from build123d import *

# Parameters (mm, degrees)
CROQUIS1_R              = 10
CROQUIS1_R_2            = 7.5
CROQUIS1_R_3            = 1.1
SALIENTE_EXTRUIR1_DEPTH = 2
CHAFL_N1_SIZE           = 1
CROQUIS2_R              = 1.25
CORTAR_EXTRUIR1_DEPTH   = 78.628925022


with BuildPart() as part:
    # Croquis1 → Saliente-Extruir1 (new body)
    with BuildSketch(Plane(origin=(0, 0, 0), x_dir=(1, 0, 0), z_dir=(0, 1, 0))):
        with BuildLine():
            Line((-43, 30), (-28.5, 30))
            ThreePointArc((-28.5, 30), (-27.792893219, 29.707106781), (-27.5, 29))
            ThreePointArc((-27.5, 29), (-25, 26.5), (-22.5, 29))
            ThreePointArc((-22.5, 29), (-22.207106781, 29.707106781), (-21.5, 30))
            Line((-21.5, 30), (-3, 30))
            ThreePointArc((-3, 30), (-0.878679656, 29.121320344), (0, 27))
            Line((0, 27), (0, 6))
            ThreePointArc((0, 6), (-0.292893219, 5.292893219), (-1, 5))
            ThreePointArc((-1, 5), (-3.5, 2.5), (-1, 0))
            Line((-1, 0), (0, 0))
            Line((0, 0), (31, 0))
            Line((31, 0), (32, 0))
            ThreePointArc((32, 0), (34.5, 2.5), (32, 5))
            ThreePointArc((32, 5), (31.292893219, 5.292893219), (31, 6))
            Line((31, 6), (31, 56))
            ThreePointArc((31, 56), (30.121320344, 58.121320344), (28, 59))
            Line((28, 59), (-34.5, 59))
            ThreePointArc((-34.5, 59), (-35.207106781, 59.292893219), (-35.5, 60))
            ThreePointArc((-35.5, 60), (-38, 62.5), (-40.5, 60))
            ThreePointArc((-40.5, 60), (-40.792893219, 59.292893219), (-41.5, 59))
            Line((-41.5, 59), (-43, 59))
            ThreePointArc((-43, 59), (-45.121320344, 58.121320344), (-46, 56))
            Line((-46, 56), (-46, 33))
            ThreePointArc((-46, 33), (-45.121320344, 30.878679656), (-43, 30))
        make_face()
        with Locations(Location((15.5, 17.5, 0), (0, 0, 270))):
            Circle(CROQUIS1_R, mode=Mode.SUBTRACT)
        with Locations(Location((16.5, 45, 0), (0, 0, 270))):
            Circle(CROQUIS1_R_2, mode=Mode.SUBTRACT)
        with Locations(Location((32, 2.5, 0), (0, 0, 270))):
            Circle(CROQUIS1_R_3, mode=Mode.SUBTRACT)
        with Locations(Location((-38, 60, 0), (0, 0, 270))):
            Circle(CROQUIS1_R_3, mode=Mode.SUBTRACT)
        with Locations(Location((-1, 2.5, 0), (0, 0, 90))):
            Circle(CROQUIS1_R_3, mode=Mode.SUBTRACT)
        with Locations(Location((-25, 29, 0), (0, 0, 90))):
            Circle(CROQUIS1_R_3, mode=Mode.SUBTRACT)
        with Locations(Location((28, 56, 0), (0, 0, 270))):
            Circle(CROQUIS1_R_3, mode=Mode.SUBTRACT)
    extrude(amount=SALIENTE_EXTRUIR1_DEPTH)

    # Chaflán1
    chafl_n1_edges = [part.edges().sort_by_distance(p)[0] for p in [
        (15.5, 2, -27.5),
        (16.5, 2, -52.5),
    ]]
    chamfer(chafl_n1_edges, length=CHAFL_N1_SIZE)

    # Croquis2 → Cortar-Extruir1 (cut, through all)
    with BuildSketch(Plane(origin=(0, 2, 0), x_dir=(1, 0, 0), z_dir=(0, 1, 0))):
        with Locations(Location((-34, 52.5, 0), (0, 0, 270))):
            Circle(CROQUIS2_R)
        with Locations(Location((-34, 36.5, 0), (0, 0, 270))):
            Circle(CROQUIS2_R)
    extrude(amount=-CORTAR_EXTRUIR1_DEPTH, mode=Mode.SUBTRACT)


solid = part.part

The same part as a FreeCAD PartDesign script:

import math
import FreeCAD as App
import Part
import Sketcher
from FreeCAD import Vector


def edges_at(feature, points):
    """Names of the edges that pass closest to the given points."""
    edges = feature.Shape.Edges
    near = lambda p: min(range(len(edges)), key=lambda i: edges[i].distToShape(Part.Vertex(*p))[0])
    return sorted({f"Edge{near(p) + 1}" for p in points})

doc = App.newDocument("Part")
body = doc.addObject("PartDesign::Body", "Body")

# Sketch on XZ plane
sketch1 = body.newObject("Sketcher::SketchObject", "Sketch")
sketch1.AttachmentSupport = (doc.getObject("XZ_Plane"), [""])
sketch1.MapMode = "FlatFace"
sketch1.addGeometry([
    Part.LineSegment(Vector(-43, -30, 0), Vector(-28.5, -30, 0)),  # 0
    Part.ArcOfCircle(Part.Circle(Vector(-28.5, -29, 0), Vector(0, 0, 1), 1), math.radians(-90), math.radians(0)),  # 1
    Part.ArcOfCircle(Part.Circle(Vector(-25, -29, 0), Vector(0, 0, 1), 2.5), math.radians(0), math.radians(180)),  # 2
    Part.ArcOfCircle(Part.Circle(Vector(-21.5, -29, 0), Vector(0, 0, 1), 1), math.radians(-180), math.radians(-90)),  # 3
    Part.LineSegment(Vector(-21.5, -30, 0), Vector(-3, -30, 0)),  # 4
    Part.ArcOfCircle(Part.Circle(Vector(-3, -27, 0), Vector(0, 0, 1), 3), math.radians(-90), math.radians(0)),  # 5
    Part.LineSegment(Vector(0, -27, 0), Vector(0, -6, 0)),  # 6
    Part.ArcOfCircle(Part.Circle(Vector(-1, -6, 0), Vector(0, 0, 1), 1), math.radians(0), math.radians(90)),  # 7
    Part.ArcOfCircle(Part.Circle(Vector(-1, -2.5, 0), Vector(0, 0, 1), 2.5), math.radians(90), math.radians(270)),  # 8
    Part.LineSegment(Vector(-1, 0, 0), Vector(32, 0, 0)),  # 9
    Part.ArcOfCircle(Part.Circle(Vector(32, -2.5, 0), Vector(0, 0, 1), 2.5), math.radians(-90), math.radians(90)),  # 10
    Part.ArcOfCircle(Part.Circle(Vector(32, -6, 0), Vector(0, 0, 1), 1), math.radians(90), math.radians(180)),  # 11
    Part.LineSegment(Vector(31, -6, 0), Vector(31, -56, 0)),  # 12
    Part.ArcOfCircle(Part.Circle(Vector(28, -56, 0), Vector(0, 0, 1), 3), math.radians(-90), math.radians(0)),  # 13
    Part.LineSegment(Vector(28, -59, 0), Vector(-34.5, -59, 0)),  # 14
    Part.ArcOfCircle(Part.Circle(Vector(-34.5, -60, 0), Vector(0, 0, 1), 1), math.radians(90), math.radians(180)),  # 15
    Part.ArcOfCircle(Part.Circle(Vector(-38, -60, 0), Vector(0, 0, 1), 2.5), math.radians(180), math.radians(360)),  # 16
    Part.ArcOfCircle(Part.Circle(Vector(-41.5, -60, 0), Vector(0, 0, 1), 1), math.radians(0), math.radians(90)),  # 17
    Part.LineSegment(Vector(-41.5, -59, 0), Vector(-43, -59, 0)),  # 18
    Part.ArcOfCircle(Part.Circle(Vector(-43, -56, 0), Vector(0, 0, 1), 3), math.radians(180), math.radians(270)),  # 19
    Part.LineSegment(Vector(-46, -56, 0), Vector(-46, -33, 0)),  # 20
    Part.ArcOfCircle(Part.Circle(Vector(-43, -33, 0), Vector(0, 0, 1), 3), math.radians(90), math.radians(180)),  # 21
    Part.Circle(Vector(-25, -29, 0), Vector(0, 0, 1), 1.1),  # 22
    Part.Circle(Vector(-1, -2.5, 0), Vector(0, 0, 1), 1.1),  # 23
    Part.Circle(Vector(32, -2.5, 0), Vector(0, 0, 1), 1.1),  # 24
    Part.Circle(Vector(15.5, -17.5, 0), Vector(0, 0, 1), 10),  # 25
    Part.Circle(Vector(-38, -60, 0), Vector(0, 0, 1), 1.1),  # 26
    Part.Circle(Vector(16.5, -45, 0), Vector(0, 0, 1), 7.5),  # 27
    Part.Circle(Vector(28, -56, 0), Vector(0, 0, 1), 1.1),  # 28
], False)
sketch1.addConstraint([
    Sketcher.Constraint("Tangent", 0, 2, 1, 1),
    Sketcher.Constraint("Tangent", 1, 2, 2, 2),
    Sketcher.Constraint("Tangent", 2, 1, 3, 1),
    Sketcher.Constraint("Tangent", 3, 2, 4, 1),
    Sketcher.Constraint("Tangent", 4, 2, 5, 1),
    Sketcher.Constraint("Tangent", 5, 2, 6, 1),
    Sketcher.Constraint("Tangent", 6, 2, 7, 1),
    Sketcher.Constraint("Tangent", 7, 2, 8, 2),
    Sketcher.Constraint("Tangent", 8, 1, 9, 1),
    Sketcher.Constraint("Tangent", 9, 2, 10, 2),
    Sketcher.Constraint("Tangent", 10, 1, 11, 1),
    Sketcher.Constraint("Tangent", 11, 2, 12, 1),
    Sketcher.Constraint("Tangent", 12, 2, 13, 2),
    Sketcher.Constraint("Tangent", 13, 1, 14, 1),
    Sketcher.Constraint("Tangent", 14, 2, 15, 1),
    Sketcher.Constraint("Tangent", 15, 2, 16, 2),
    Sketcher.Constraint("Tangent", 16, 1, 17, 1),
    Sketcher.Constraint("Tangent", 17, 2, 18, 1),
    Sketcher.Constraint("Tangent", 18, 2, 19, 2),
    Sketcher.Constraint("Tangent", 19, 1, 20, 1),
    Sketcher.Constraint("Tangent", 20, 2, 21, 2),
    Sketcher.Constraint("Tangent", 21, 1, 0, 1),
    Sketcher.Constraint("Horizontal", 0),
    Sketcher.Constraint("Horizontal", 4),
    Sketcher.Constraint("Vertical", 6),
    Sketcher.Constraint("Horizontal", 9),
    Sketcher.Constraint("Vertical", 12),
    Sketcher.Constraint("Horizontal", 14),
    Sketcher.Constraint("Horizontal", 18),
    Sketcher.Constraint("Vertical", 20),
    Sketcher.Constraint("Coincident", 22, 3, 2, 3),
    Sketcher.Constraint("Coincident", 23, 3, 8, 3),
    Sketcher.Constraint("Coincident", 24, 3, 10, 3),
    Sketcher.Constraint("Coincident", 26, 3, 16, 3),
    Sketcher.Constraint("Coincident", 28, 3, 13, 3),
    Sketcher.Constraint("Equal", 1, 3),
    Sketcher.Constraint("Equal", 3, 7),
    Sketcher.Constraint("Equal", 2, 8),
    Sketcher.Constraint("Equal", 8, 10),
    Sketcher.Constraint("Equal", 7, 11),
    Sketcher.Constraint("Equal", 5, 13),
    Sketcher.Constraint("Equal", 11, 15),
    Sketcher.Constraint("Equal", 10, 16),
    Sketcher.Constraint("Equal", 15, 17),
    Sketcher.Constraint("Equal", 13, 19),
    Sketcher.Constraint("Equal", 19, 21),
    Sketcher.Constraint("Equal", 22, 23),
    Sketcher.Constraint("Equal", 23, 24),
    Sketcher.Constraint("Equal", 24, 26),
    Sketcher.Constraint("Equal", 26, 28),
    Sketcher.Constraint("PointOnObject", 5, 2, -2),
    Sketcher.Constraint("PointOnObject", 8, 1, -1),
    Sketcher.Constraint("Horizontal", 1, 3, 2, 3),
    Sketcher.Constraint("Horizontal", 2, 3, 3, 3),
    Sketcher.Constraint("Horizontal", 15, 3, 16, 3),
    Sketcher.Constraint("Horizontal", 16, 3, 17, 3),
    Sketcher.Constraint("Vertical", 7, 3, 8, 3),
    Sketcher.Constraint("Vertical", 10, 3, 11, 3),
    Sketcher.Constraint("Diameter", 25, 20.0),
    Sketcher.Constraint("Diameter", 27, 15.0),
    Sketcher.Constraint("Radius", 1, 1.0),
    Sketcher.Constraint("Radius", 5, 3.0),
    Sketcher.Constraint("Diameter", 22, 2.2),
    Sketcher.Constraint("Radius", 2, 2.5),
    Sketcher.Constraint("DistanceX", 9, 1, 9, 2, 33.0),
    Sketcher.Constraint("DistanceY", 6, 1, 6, 2, 21.0),
    Sketcher.Constraint("DistanceY", 12, 2, 12, 1, 50.0),
    Sketcher.Constraint("DistanceX", 0, 1, 0, 2, 14.5),
    Sketcher.Constraint("DistanceX", 4, 1, 4, 2, 18.5),
    Sketcher.Constraint("DistanceX", 14, 2, 14, 1, 62.5),
    Sketcher.Constraint("DistanceY", 27, 3, -1, 1, 45.0),
    Sketcher.Constraint("DistanceY", 25, 3, 8, 3, 15.0),
    Sketcher.Constraint("DistanceX", 25, 3, 27, 3, 1.0),
    Sketcher.Constraint("DistanceX", 3, 3, 27, 3, 38.0),
])
pad1 = body.newObject("PartDesign::Pad", "Pad")
pad1.Profile = sketch1
pad1.Length = 2
pad1.Reversed = True
doc.recompute()

chamfer = body.newObject("PartDesign::Chamfer", "Chamfer")
chamfer.Base = (pad1, edges_at(pad1, [(15.5, 2, -27.5), (16.5, 2, -52.5)]))
chamfer.Size = 1

# Sketch on XZ plane
sketch2 = body.newObject("Sketcher::SketchObject", "Sketch001")
sketch2.AttachmentSupport = (doc.getObject("XZ_Plane"), [""])
sketch2.MapMode = "FlatFace"
sketch2.AttachmentOffset = App.Placement(Vector(0, 0, -2), App.Rotation())
sketch2.addGeometry([
    Part.Circle(Vector(-34, -52.5, 0), Vector(0, 0, 1), 1.2),
    Part.Circle(Vector(-34, -36.5, 0), Vector(0, 0, 1), 1.2),
], False)
sketch2.addConstraint([
    Sketcher.Constraint("Equal", 0, 1),
    Sketcher.Constraint("Vertical", 0, 3, 1, 3),
    Sketcher.Constraint("Diameter", 0, 2.5),
    Sketcher.Constraint("DistanceX", 0, 3, -1, 1, 34.0),
    Sketcher.Constraint("DistanceY", 0, 3, 1, 3, 16.0),
    Sketcher.Constraint("DistanceY", 0, 3, -1, 1, 52.5),
])
pocket1 = body.newObject("PartDesign::Pocket", "Pocket")
pocket1.Profile = sketch2
pocket1.Type = "ThroughAll"
pocket1.Reversed = True

doc.recompute()
